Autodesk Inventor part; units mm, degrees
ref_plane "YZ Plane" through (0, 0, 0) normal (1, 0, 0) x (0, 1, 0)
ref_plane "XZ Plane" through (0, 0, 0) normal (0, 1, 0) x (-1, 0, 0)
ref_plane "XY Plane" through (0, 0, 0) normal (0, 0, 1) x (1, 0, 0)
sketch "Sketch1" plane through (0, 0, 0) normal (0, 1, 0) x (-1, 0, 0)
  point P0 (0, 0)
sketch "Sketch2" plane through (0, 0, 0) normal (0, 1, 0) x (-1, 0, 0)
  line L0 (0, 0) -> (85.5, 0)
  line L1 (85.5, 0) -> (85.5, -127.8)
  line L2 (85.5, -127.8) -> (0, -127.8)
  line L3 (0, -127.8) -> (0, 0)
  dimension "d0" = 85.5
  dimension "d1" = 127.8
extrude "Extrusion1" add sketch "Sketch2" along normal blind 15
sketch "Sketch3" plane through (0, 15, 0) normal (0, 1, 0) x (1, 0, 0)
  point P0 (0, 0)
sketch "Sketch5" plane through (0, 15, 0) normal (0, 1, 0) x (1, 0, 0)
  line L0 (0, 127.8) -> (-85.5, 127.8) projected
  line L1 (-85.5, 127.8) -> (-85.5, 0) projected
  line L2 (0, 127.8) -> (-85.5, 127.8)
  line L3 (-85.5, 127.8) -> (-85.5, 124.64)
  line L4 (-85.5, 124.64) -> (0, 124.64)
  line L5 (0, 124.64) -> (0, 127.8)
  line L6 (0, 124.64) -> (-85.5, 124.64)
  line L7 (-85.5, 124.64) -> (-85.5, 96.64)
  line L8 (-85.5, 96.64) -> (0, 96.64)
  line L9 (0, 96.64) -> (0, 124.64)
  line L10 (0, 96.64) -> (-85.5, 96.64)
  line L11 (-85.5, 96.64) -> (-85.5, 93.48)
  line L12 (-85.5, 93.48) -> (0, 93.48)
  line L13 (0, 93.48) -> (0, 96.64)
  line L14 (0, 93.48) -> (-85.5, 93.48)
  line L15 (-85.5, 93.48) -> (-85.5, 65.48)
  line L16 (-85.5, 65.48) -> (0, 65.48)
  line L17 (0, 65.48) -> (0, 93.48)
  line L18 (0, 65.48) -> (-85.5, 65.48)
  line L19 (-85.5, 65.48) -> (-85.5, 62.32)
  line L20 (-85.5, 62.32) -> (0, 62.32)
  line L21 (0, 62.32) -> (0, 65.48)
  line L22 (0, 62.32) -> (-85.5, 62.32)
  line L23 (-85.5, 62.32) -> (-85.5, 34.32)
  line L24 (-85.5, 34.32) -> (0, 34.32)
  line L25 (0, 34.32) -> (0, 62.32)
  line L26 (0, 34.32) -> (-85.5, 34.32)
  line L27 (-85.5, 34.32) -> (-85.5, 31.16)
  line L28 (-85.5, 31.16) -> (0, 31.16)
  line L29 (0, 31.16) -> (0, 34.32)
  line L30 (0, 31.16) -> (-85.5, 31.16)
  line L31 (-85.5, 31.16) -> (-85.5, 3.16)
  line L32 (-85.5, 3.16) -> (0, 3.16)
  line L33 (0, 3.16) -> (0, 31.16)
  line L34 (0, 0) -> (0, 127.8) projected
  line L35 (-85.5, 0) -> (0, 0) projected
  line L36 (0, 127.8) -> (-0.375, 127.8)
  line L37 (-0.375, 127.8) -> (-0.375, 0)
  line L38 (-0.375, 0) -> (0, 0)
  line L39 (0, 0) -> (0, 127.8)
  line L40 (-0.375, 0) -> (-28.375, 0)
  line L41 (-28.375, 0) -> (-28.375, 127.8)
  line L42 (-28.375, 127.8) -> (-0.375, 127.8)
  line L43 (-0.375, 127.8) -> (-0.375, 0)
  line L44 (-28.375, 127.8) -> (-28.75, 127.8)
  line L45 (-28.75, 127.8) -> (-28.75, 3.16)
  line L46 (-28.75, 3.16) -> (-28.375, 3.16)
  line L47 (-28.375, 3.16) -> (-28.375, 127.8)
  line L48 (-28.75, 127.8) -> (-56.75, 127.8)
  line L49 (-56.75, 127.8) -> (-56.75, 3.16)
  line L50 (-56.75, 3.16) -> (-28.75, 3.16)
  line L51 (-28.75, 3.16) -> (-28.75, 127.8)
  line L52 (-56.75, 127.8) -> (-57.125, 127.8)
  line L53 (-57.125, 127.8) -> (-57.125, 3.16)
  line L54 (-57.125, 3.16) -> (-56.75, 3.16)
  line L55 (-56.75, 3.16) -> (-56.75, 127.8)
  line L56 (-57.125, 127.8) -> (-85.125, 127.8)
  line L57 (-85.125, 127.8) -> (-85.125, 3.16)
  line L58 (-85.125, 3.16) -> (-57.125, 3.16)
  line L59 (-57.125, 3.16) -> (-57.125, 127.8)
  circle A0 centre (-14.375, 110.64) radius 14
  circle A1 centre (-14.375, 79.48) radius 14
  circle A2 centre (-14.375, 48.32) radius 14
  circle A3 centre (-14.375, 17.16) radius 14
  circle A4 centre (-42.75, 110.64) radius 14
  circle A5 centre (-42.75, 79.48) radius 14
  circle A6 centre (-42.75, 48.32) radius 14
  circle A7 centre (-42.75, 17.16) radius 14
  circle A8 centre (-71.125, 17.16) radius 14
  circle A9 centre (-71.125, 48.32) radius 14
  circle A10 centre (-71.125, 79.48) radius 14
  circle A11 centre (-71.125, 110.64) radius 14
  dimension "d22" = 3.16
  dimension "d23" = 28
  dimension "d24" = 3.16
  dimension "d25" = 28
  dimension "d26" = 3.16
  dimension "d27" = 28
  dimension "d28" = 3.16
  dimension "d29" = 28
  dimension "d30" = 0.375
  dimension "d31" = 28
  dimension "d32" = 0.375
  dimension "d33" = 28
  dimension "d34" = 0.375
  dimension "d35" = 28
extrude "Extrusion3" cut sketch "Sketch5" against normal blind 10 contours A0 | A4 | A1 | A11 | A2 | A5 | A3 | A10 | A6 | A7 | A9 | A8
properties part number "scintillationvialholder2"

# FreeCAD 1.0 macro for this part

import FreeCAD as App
import Part
import Sketcher

V = App.Vector


def add_polygon(sketch, points):
    """Adds a closed chain of lines whose ends are joined by coincident constraints."""
    first, n = sketch.GeometryCount, len(points)
    for a, b in zip(points, points[1:] + points[:1]):
        sketch.addGeometry(Part.LineSegment(App.Vector(*a, 0), App.Vector(*b, 0)), False)
    for i in range(n):
        sketch.addConstraint(Sketcher.Constraint("Coincident", first + i, 2, first + (i + 1) % n, 1))

doc = App.newDocument("Part")
body = doc.addObject("PartDesign::Body", "Body")

# Sketch on XZ plane
sketch1 = body.newObject("Sketcher::SketchObject", "Sketch")
sketch1.AttachmentSupport = (doc.getObject("XZ_Plane"), [""])
sketch1.MapMode = "FlatFace"
add_polygon(sketch1, [(-85.5, 0), (0, 0), (0, -127.8), (-85.5, -127.8)])  # lines 0-3
sketch1.addConstraint(Sketcher.Constraint("Horizontal", 0))
sketch1.addConstraint(Sketcher.Constraint("Vertical", 1))
sketch1.addConstraint(Sketcher.Constraint("Horizontal", 2))
sketch1.addConstraint(Sketcher.Constraint("Vertical", 3))
sketch1.addConstraint(Sketcher.Constraint("Coincident", 0, 2, -1, 1))
sketch1.addConstraint(Sketcher.Constraint("DistanceX", 0, 1, 0, 2, 85.5))
sketch1.addConstraint(Sketcher.Constraint("DistanceY", 1, 2, 1, 1, 127.8))
pad1 = body.newObject("PartDesign::Pad", "Pad")
pad1.Profile = sketch1
pad1.Length = 15
pad1.Reversed = True

# Sketch on XZ plane
sketch2 = body.newObject("Sketcher::SketchObject", "Sketch001")
sketch2.AttachmentSupport = (doc.getObject("XZ_Plane"), [""])
sketch2.MapMode = "FlatFace"
sketch2.AttachmentOffset = App.Placement(V(0, 0, -15), App.Rotation())
sketch2.addGeometry(Part.Circle(V(-14.375, -110.64, 0), V(0, 0, 1), 14), False)
sketch2.addGeometry(Part.Circle(V(-42.75, -110.64, 0), V(0, 0, 1), 14), False)
sketch2.addGeometry(Part.Circle(V(-14.375, -79.48, 0), V(0, 0, 1), 14), False)
sketch2.addGeometry(Part.Circle(V(-71.125, -110.64, 0), V(0, 0, 1), 14), False)
sketch2.addGeometry(Part.Circle(V(-14.375, -48.32, 0), V(0, 0, 1), 14), False)
sketch2.addGeometry(Part.Circle(V(-42.75, -79.48, 0), V(0, 0, 1), 14), False)
sketch2.addGeometry(Part.Circle(V(-14.375, -17.16, 0), V(0, 0, 1), 14), False)
sketch2.addGeometry(Part.Circle(V(-71.125, -79.48, 0), V(0, 0, 1), 14), False)
sketch2.addGeometry(Part.Circle(V(-42.75, -48.32, 0), V(0, 0, 1), 14), False)
sketch2.addGeometry(Part.Circle(V(-42.75, -17.16, 0), V(0, 0, 1), 14), False)
sketch2.addGeometry(Part.Circle(V(-71.125, -48.32, 0), V(0, 0, 1), 14), False)
sketch2.addGeometry(Part.Circle(V(-71.125, -17.16, 0), V(0, 0, 1), 14), False)
sketch2.addConstraint(Sketcher.Constraint("Equal", 0, 1))
sketch2.addConstraint(Sketcher.Constraint("Equal", 1, 2))
sketch2.addConstraint(Sketcher.Constraint("Equal", 2, 3))
sketch2.addConstraint(Sketcher.Constraint("Equal", 3, 4))
sketch2.addConstraint(Sketcher.Constraint("Equal", 4, 5))
sketch2.addConstraint(Sketcher.Constraint("Equal", 5, 6))
sketch2.addConstraint(Sketcher.Constraint("Equal", 6, 7))
sketch2.addConstraint(Sketcher.Constraint("Equal", 7, 8))
sketch2.addConstraint(Sketcher.Constraint("Equal", 8, 9))
sketch2.addConstraint(Sketcher.Constraint("Equal", 9, 10))
sketch2.addConstraint(Sketcher.Constraint("Equal", 10, 11))
sketch2.addConstraint(Sketcher.Constraint("Horizontal", 0, 3, 1, 3))
sketch2.addConstraint(Sketcher.Constraint("Horizontal", 1, 3, 3, 3))
sketch2.addConstraint(Sketcher.Constraint("Horizontal", 2, 3, 5, 3))
sketch2.addConstraint(Sketcher.Constraint("Horizontal", 5, 3, 7, 3))
sketch2.addConstraint(Sketcher.Constraint("Horizontal", 4, 3, 8, 3))
sketch2.addConstraint(Sketcher.Constraint("Horizontal", 6, 3, 9, 3))
sketch2.addConstraint(Sketcher.Constraint("Horizontal", 8, 3, 10, 3))
sketch2.addConstraint(Sketcher.Constraint("Horizontal", 9, 3, 11, 3))
sketch2.addConstraint(Sketcher.Constraint("Vertical", 0, 3, 2, 3))
sketch2.addConstraint(Sketcher.Constraint("Vertical", 2, 3, 4, 3))
sketch2.addConstraint(Sketcher.Constraint("Vertical", 1, 3, 5, 3))
sketch2.addConstraint(Sketcher.Constraint("Vertical", 4, 3, 6, 3))
sketch2.addConstraint(Sketcher.Constraint("Vertical", 3, 3, 7, 3))
sketch2.addConstraint(Sketcher.Constraint("Vertical", 5, 3, 8, 3))
sketch2.addConstraint(Sketcher.Constraint("Vertical", 8, 3, 9, 3))
sketch2.addConstraint(Sketcher.Constraint("Vertical", 7, 3, 10, 3))
sketch2.addConstraint(Sketcher.Constraint("Vertical", 10, 3, 11, 3))
sketch2.addConstraint(Sketcher.Constraint("Diameter", 0, 28.0))
sketch2.addConstraint(Sketcher.Constraint("DistanceY", 0, 3, -1, 1, 110.64))
sketch2.addConstraint(Sketcher.Constraint("DistanceX", 1, 3, -1, 1, 42.75))
sketch2.addConstraint(Sketcher.Constraint("DistanceY", 2, 3, -1, 1, 79.48))
sketch2.addConstraint(Sketcher.Constraint("DistanceY", 4, 3, -1, 1, 48.32))
sketch2.addConstraint(Sketcher.Constraint("DistanceY", 6, 3, -1, 1, 17.16))
sketch2.addConstraint(Sketcher.Constraint("DistanceX", 3, 3, 0, 3, 56.75))
sketch2.addConstraint(Sketcher.Constraint("DistanceX", 0, 3, -1, 1, 14.375))
pocket1 = body.newObject("PartDesign::Pocket", "Pocket")
pocket1.Profile = sketch2
pocket1.Length = 10
pocket1.Reversed = True

doc.recompute()
